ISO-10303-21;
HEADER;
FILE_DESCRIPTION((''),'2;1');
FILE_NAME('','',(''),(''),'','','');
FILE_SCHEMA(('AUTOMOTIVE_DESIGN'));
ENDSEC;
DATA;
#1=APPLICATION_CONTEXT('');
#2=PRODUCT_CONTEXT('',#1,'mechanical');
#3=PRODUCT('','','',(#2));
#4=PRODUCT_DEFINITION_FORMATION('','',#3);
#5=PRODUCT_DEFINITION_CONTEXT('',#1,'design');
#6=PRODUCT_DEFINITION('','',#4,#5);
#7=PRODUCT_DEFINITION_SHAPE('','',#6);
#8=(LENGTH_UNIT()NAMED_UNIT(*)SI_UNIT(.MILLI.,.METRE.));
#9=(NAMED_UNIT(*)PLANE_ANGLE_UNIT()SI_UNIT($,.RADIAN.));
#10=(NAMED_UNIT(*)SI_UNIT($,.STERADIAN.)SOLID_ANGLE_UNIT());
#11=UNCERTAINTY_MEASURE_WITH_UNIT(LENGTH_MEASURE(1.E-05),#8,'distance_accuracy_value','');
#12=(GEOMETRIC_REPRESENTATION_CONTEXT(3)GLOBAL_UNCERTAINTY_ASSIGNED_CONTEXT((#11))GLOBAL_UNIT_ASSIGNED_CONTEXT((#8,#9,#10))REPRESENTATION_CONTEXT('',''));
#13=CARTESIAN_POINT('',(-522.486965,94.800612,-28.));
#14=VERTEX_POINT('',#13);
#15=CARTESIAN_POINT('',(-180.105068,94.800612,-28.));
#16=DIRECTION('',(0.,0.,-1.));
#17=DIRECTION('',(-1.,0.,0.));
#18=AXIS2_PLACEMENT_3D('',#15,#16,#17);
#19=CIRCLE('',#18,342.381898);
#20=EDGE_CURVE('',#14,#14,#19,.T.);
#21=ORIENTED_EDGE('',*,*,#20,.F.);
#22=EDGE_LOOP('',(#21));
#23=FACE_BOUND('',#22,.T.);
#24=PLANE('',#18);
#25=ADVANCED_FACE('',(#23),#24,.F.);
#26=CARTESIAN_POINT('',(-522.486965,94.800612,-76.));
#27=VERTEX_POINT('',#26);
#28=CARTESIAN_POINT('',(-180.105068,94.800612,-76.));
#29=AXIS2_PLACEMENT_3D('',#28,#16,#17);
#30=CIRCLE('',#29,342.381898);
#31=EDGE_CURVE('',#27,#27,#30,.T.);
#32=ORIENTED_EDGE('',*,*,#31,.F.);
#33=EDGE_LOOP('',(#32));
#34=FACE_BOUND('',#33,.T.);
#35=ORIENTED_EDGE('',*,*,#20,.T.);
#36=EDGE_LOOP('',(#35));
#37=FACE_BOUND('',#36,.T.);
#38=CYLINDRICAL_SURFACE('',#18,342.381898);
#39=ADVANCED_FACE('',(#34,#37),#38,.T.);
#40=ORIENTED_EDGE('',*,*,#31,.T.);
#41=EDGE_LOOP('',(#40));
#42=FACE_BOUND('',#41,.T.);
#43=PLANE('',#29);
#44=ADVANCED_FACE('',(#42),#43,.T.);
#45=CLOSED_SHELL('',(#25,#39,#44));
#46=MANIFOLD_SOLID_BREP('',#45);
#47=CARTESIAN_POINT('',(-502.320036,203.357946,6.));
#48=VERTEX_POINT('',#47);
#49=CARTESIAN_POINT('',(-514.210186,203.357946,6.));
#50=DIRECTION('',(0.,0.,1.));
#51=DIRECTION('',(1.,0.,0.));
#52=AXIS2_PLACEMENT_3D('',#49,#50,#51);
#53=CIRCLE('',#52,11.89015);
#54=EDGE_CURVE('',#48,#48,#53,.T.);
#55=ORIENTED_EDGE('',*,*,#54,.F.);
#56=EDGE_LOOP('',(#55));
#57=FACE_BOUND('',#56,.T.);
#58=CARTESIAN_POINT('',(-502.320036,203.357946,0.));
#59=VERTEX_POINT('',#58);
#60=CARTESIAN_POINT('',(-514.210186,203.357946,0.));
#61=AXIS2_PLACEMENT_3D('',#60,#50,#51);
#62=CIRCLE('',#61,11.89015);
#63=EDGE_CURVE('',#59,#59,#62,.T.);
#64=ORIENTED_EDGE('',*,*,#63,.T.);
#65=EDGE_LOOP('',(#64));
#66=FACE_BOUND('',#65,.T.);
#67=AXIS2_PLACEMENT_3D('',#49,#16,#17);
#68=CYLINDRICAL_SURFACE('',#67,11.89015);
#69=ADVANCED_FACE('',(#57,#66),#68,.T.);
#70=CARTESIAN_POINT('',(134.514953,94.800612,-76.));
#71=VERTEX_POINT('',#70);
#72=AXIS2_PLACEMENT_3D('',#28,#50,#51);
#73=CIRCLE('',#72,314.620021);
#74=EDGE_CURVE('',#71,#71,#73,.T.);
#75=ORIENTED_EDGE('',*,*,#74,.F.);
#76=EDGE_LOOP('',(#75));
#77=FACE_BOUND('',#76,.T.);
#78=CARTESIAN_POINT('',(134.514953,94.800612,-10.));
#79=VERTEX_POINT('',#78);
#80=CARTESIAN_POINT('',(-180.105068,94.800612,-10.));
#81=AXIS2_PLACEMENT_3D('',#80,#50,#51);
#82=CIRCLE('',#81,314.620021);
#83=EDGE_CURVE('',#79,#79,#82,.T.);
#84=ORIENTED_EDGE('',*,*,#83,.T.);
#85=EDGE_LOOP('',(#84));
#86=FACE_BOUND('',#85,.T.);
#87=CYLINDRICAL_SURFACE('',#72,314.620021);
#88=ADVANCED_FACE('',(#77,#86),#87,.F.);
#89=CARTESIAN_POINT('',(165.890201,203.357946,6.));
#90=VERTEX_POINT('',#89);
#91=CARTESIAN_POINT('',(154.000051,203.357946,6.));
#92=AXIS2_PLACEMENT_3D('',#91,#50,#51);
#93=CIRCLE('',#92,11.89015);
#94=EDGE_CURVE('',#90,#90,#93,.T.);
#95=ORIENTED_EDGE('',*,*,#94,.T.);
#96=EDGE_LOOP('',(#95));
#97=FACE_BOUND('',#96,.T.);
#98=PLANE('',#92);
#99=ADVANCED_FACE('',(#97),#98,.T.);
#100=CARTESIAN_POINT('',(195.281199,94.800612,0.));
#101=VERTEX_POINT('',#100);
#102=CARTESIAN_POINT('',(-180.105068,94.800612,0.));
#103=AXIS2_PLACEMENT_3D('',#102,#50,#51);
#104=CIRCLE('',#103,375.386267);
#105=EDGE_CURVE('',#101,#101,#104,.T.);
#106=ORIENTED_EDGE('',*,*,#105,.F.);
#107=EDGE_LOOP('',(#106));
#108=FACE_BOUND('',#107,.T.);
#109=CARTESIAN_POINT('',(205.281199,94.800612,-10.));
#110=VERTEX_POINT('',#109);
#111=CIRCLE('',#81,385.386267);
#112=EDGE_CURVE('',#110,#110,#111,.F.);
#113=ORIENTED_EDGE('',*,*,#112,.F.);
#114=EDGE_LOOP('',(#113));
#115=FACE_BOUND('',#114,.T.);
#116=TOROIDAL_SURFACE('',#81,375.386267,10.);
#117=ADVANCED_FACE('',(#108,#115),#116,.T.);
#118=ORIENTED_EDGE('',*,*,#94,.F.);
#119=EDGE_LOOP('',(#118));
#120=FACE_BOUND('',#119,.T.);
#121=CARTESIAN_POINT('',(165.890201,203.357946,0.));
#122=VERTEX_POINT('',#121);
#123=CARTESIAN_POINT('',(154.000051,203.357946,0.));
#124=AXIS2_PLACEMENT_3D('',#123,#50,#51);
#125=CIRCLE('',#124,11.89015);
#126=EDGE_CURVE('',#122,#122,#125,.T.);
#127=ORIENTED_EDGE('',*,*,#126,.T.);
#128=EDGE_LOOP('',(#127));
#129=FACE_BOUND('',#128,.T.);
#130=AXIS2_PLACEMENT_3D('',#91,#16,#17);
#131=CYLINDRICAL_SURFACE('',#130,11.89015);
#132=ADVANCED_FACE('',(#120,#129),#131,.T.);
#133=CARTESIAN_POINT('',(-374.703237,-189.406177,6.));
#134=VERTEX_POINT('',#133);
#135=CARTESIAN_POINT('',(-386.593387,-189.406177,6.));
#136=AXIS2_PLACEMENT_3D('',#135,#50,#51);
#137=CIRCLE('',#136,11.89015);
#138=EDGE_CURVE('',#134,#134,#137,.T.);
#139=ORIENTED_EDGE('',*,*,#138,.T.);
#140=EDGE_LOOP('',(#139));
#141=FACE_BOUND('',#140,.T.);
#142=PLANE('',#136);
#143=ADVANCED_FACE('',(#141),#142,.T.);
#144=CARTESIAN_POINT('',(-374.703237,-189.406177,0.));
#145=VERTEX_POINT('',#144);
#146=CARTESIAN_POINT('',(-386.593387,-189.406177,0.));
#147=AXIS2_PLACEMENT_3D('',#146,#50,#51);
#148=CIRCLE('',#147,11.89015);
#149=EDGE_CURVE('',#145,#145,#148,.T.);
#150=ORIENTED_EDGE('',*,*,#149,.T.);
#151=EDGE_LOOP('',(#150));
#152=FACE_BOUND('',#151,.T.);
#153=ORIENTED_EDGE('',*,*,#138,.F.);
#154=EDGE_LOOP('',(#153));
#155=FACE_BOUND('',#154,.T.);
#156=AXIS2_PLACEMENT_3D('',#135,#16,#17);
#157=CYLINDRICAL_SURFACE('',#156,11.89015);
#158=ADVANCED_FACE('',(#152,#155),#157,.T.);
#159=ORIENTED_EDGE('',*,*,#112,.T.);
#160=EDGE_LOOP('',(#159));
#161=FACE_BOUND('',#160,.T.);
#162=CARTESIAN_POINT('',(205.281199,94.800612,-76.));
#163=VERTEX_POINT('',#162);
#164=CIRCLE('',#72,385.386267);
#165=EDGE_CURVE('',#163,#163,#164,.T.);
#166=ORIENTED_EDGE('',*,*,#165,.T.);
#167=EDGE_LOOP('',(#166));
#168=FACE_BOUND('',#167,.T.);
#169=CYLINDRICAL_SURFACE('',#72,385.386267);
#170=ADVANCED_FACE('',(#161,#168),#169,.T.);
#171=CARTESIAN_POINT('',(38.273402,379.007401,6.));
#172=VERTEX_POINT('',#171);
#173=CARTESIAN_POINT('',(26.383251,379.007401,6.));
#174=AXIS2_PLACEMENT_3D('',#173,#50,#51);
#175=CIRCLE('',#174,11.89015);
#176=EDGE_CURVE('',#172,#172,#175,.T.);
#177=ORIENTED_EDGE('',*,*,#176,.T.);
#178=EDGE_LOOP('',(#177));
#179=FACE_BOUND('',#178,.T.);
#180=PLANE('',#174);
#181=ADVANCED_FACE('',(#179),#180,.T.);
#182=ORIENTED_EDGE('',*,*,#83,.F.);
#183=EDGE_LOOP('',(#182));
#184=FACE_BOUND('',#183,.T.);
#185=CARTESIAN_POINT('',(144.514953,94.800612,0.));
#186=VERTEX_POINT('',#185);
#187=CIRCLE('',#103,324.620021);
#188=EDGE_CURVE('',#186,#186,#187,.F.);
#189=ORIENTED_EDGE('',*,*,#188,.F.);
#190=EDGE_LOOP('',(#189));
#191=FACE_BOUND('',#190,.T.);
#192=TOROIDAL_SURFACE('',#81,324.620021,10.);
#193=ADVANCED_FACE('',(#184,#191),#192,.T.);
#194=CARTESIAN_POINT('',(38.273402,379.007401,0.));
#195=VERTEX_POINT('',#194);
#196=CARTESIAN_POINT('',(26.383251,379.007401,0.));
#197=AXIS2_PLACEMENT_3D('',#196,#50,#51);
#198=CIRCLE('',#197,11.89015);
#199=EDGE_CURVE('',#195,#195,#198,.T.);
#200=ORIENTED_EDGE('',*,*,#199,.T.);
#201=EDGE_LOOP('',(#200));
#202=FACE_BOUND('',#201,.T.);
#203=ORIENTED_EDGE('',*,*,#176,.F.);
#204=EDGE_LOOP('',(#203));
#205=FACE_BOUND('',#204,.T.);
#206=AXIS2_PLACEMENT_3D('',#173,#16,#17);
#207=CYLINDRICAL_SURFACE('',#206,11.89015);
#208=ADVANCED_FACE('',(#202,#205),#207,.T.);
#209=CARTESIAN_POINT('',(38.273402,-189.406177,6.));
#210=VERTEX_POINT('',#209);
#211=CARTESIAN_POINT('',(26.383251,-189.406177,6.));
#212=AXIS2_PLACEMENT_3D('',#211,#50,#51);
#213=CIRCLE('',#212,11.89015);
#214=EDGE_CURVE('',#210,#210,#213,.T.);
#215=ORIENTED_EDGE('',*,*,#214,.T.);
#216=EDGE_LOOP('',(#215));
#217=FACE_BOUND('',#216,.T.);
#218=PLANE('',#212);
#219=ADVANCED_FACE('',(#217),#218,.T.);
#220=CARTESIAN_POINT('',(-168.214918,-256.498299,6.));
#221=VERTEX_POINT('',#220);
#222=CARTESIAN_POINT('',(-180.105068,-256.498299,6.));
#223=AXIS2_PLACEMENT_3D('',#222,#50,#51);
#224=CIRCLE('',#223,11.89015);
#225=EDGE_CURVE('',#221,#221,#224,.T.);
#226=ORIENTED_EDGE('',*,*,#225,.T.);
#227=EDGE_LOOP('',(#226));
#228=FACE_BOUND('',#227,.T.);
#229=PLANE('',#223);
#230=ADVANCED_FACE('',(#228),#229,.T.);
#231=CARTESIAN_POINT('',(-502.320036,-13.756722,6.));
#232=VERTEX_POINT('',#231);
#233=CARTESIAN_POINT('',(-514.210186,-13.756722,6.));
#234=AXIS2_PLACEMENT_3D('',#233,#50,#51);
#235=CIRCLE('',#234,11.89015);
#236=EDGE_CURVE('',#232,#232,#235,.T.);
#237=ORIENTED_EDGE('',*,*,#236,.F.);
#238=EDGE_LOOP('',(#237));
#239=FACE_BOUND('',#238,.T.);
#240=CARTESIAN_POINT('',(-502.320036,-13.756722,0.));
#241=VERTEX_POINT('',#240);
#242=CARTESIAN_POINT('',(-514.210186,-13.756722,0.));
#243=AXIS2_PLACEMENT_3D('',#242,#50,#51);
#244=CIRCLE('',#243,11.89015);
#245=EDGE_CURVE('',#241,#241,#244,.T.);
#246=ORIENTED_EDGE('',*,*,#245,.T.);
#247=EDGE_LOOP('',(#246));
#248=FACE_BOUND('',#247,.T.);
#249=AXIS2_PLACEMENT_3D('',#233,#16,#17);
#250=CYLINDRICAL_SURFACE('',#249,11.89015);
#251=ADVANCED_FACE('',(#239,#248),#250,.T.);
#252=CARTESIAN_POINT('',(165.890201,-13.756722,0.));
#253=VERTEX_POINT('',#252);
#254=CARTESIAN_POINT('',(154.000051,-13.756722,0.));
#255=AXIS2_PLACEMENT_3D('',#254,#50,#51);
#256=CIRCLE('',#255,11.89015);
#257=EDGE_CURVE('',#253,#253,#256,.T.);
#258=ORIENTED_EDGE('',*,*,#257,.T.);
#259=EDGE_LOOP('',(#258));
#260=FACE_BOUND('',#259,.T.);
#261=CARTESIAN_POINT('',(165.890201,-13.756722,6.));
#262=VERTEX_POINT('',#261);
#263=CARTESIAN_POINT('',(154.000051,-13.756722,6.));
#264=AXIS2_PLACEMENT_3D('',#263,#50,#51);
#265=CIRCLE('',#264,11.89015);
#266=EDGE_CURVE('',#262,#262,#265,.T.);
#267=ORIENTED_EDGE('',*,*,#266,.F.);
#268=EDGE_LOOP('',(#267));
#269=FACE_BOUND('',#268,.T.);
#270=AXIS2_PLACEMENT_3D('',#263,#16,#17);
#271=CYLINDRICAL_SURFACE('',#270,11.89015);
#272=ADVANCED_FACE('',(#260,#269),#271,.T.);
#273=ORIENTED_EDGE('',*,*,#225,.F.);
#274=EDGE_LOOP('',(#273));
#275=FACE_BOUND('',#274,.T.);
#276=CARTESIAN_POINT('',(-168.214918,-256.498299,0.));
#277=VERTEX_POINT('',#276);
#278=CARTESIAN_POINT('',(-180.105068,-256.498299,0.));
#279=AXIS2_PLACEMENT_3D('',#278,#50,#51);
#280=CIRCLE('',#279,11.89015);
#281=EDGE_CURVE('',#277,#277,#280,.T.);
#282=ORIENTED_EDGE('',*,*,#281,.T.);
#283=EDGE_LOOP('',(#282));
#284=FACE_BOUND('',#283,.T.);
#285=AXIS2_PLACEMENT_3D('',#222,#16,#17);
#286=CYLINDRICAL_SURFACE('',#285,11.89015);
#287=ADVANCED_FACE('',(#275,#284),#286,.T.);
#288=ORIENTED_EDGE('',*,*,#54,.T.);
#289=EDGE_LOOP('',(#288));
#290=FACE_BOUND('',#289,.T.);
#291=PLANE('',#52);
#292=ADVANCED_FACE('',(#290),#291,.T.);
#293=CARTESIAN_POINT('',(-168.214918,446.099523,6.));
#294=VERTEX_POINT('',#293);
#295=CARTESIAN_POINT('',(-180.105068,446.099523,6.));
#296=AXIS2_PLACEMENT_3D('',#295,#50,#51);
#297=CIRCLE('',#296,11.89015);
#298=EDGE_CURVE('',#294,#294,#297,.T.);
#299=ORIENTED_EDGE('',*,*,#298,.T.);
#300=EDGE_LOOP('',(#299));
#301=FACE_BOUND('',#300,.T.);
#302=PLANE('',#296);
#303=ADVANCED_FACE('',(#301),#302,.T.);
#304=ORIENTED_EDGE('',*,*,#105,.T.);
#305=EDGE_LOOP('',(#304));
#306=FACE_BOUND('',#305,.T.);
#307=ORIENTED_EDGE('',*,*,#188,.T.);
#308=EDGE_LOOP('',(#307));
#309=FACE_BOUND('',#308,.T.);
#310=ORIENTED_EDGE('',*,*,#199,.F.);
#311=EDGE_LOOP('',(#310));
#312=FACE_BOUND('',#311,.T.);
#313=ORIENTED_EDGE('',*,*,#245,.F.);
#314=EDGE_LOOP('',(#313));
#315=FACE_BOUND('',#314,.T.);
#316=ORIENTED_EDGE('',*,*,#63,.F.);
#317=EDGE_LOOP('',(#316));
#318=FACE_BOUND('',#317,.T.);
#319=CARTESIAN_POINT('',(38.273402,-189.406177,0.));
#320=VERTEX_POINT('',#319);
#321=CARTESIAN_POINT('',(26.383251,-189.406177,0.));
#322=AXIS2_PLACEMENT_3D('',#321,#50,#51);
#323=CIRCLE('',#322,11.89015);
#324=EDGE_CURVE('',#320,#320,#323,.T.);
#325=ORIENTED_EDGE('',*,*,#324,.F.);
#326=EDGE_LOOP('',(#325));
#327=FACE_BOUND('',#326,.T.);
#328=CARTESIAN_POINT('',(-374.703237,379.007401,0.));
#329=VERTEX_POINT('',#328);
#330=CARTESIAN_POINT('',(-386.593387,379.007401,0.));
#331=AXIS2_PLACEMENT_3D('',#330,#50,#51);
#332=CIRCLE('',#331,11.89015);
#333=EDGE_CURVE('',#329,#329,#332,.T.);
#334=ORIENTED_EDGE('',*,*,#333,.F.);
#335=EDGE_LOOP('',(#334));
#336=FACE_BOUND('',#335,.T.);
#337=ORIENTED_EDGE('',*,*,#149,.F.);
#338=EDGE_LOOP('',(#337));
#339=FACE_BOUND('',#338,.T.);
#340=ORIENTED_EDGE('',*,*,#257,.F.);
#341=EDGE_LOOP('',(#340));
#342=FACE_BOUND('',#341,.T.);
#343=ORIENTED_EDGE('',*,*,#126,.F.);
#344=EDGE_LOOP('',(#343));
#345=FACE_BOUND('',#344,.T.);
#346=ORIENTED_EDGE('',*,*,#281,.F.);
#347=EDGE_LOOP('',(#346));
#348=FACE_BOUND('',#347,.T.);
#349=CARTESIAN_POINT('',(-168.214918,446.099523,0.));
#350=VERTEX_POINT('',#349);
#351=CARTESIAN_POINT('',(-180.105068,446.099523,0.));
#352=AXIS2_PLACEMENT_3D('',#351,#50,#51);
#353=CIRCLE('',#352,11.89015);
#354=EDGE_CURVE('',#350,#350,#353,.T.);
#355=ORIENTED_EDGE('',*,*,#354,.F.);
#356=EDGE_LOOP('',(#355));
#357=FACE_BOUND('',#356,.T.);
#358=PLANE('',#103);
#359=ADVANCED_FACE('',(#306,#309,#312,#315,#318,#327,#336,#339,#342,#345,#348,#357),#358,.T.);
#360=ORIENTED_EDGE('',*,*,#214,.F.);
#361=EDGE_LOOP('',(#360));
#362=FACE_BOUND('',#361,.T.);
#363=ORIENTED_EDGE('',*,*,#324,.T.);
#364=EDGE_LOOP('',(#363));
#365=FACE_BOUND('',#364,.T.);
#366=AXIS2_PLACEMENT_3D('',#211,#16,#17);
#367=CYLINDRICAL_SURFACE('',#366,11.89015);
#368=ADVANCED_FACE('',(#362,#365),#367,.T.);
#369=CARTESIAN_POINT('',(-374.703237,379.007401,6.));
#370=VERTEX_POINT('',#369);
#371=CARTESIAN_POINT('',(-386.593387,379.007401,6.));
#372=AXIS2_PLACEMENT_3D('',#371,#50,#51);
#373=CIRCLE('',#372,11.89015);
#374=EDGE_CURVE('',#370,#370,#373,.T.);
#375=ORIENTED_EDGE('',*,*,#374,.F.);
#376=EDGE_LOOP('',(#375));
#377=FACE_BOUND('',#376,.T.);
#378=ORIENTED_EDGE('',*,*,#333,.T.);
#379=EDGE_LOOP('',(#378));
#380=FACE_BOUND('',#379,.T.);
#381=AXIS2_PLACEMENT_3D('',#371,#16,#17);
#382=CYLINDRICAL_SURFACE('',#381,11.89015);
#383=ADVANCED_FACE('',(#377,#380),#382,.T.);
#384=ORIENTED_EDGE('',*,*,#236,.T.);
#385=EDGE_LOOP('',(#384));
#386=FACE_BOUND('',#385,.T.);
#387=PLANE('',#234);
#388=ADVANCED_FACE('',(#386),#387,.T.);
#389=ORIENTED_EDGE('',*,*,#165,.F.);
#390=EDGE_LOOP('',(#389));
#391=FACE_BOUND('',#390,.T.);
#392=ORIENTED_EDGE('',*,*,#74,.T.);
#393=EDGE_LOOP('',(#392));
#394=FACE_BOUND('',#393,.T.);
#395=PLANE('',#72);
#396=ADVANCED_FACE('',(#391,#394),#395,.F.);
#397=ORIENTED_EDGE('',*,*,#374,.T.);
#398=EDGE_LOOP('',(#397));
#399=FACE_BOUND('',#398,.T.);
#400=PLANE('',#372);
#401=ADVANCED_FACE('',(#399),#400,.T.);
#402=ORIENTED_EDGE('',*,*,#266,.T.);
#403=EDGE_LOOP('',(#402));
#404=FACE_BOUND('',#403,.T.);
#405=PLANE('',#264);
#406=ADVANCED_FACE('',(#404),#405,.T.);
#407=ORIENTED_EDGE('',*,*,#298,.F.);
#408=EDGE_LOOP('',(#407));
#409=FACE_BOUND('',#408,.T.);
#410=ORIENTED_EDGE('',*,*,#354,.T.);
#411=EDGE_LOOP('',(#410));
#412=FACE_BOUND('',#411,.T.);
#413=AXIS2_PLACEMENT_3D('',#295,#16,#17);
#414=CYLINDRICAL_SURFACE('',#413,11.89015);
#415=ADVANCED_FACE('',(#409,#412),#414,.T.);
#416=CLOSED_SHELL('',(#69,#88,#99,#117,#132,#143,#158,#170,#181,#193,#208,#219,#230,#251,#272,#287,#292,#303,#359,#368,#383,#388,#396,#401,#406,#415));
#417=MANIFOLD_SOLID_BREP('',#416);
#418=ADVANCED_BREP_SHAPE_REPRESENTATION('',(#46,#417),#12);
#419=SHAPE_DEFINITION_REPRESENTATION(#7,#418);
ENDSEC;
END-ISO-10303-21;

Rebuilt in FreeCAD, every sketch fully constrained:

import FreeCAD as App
import Part
import Sketcher

V = App.Vector
Q = App.Units.Quantity


def edges_at(feature, points):
    """Names of the edges that pass closest to the given points."""
    edges = feature.Shape.Edges
    near = lambda p: min(range(len(edges)), key=lambda i: edges[i].distToShape(Part.Vertex(*p))[0])
    return sorted({f"Edge{near(p) + 1}" for p in points})

doc = App.newDocument("Part")
params = doc.addObject("Spreadsheet::Sheet", "Params")
for row, (alias, value) in enumerate([
    ("pad1_length", "76 mm"),
    ("fillet_radius", "10 mm"),
    ("fillet2_radius", "10 mm"),
    ("pad2_length", "6 mm"),
    ("pad3_length", "48 mm"),
], start=1):
    params.set(f"A{row}", alias)
    params.set(f"B{row}", "=" + value)
    params.setAlias(f"B{row}", alias)

body = doc.addObject("PartDesign::Body", "Body")

# Sketch on XY plane
sketch1 = body.newObject("Sketcher::SketchObject", "Sketch")
sketch1.AttachmentSupport = (doc.getObject("XY_Plane"), [""])
sketch1.MapMode = "FlatFace"
sketch1.addGeometry([
    Part.Circle(V(-180, 95, 0), V(0, 0, 1), 385),
    Part.Circle(V(-180, 95, 0), V(0, 0, 1), 315),
], False)
sketch1.addConstraint([
    Sketcher.Constraint("Coincident", 1, 3, 0, 3),
    Sketcher.Constraint("Diameter", 1, Q("629.240041 mm")),
    Sketcher.Constraint("Diameter", 0, Q("770.772533 mm")),
    Sketcher.Constraint("DistanceY", -1, 1, 0, 3, Q("94.800612 mm")),
    Sketcher.Constraint("DistanceX", 0, 3, -1, 1, Q("180.105068 mm")),
])
pad1 = body.newObject("PartDesign::Pad", "Pad")
pad1.Profile = sketch1
pad1.setExpression("Length", "Params.pad1_length")
pad1.Reversed = True
doc.recompute()

fillet = body.newObject("PartDesign::Fillet", "Fillet")
fillet.Base = (pad1, edges_at(pad1, [(-494.725, 94.801, 0)]))
fillet.setExpression("Radius", "Params.fillet_radius")
doc.recompute()

fillet2 = body.newObject("PartDesign::Fillet", "Fillet001")
fillet2.Base = (fillet, edges_at(fillet, [(-565.491, 94.801, 0)]))
fillet2.setExpression("Radius", "Params.fillet2_radius")

# Sketch on XY plane
sketch2 = body.newObject("Sketcher::SketchObject", "Sketch001")
sketch2.AttachmentSupport = (doc.getObject("XY_Plane"), [""])
sketch2.MapMode = "FlatFace"
sketch2.addGeometry([
    Part.Circle(V(26, 379, 0), V(0, 0, 1), 12),  # 0
    Part.Circle(V(-180, 446, 0), V(0, 0, 1), 12),  # 1
    Part.Circle(V(154, 203, 0), V(0, 0, 1), 12),  # 2
    Part.Circle(V(154, -14, 0), V(0, 0, 1), 12),  # 3
    Part.Circle(V(26, -189, 0), V(0, 0, 1), 12),  # 4
    Part.Circle(V(-180, -256, 0), V(0, 0, 1), 12),  # 5
    Part.Circle(V(-387, -189, 0), V(0, 0, 1), 12),  # 6
    Part.Circle(V(-514, -14, 0), V(0, 0, 1), 12),  # 7
    Part.Circle(V(-514, 203, 0), V(0, 0, 1), 12),  # 8
    Part.Circle(V(-387, 379, 0), V(0, 0, 1), 12),  # 9
], False)
sketch2.addConstraint([
    Sketcher.Constraint("Equal", 0, 1),
    Sketcher.Constraint("Equal", 1, 2),
    Sketcher.Constraint("Equal", 2, 3),
    Sketcher.Constraint("Equal", 3, 4),
    Sketcher.Constraint("Equal", 4, 5),
    Sketcher.Constraint("Equal", 5, 6),
    Sketcher.Constraint("Equal", 6, 7),
    Sketcher.Constraint("Equal", 7, 8),
    Sketcher.Constraint("Equal", 8, 9),
    Sketcher.Constraint("Horizontal", 4, 3, 6, 3),
    Sketcher.Constraint("Horizontal", 3, 3, 7, 3),
    Sketcher.Constraint("Horizontal", 2, 3, 8, 3),
    Sketcher.Constraint("Horizontal", 0, 3, 9, 3),
    Sketcher.Constraint("Vertical", 2, 3, 3, 3),
    Sketcher.Constraint("Vertical", 0, 3, 4, 3),
    Sketcher.Constraint("Vertical", 1, 3, 5, 3),
    Sketcher.Constraint("Vertical", 7, 3, 8, 3),
    Sketcher.Constraint("Vertical", 6, 3, 9, 3),
    Sketcher.Constraint("Diameter", 0, Q("23.7803 mm")),
    Sketcher.Constraint("DistanceY", -1, 1, 0, 3, Q("379.007401 mm")),
    Sketcher.Constraint("DistanceY", 5, 3, -1, 1, Q("256.498299 mm")),
    Sketcher.Constraint("DistanceX", 0, 3, 2, 3, Q("127.616799 mm")),
    Sketcher.Constraint("DistanceY", 4, 3, 1, 3, Q("635.5057 mm")),
    Sketcher.Constraint("DistanceX", 7, 3, 6, 3, Q("127.616799 mm")),
    Sketcher.Constraint("DistanceX", -1, 1, 0, 3, Q("26.383251 mm")),
    Sketcher.Constraint("DistanceY", 3, 3, -1, 1, Q("13.756722 mm")),
    Sketcher.Constraint("DistanceX", 1, 3, 0, 3, Q("206.488319 mm")),
    Sketcher.Constraint("DistanceY", 0, 3, 1, 3, Q("67.092122 mm")),
    Sketcher.Constraint("DistanceX", 6, 3, 5, 3, Q("206.488319 mm")),
    Sketcher.Constraint("DistanceY", -1, 1, 2, 3, Q("203.357946 mm")),
])
pad2 = body.newObject("PartDesign::Pad", "Pad001")
pad2.Profile = sketch2
pad2.setExpression("Length", "Params.pad2_length")
body2 = doc.addObject("PartDesign::Body", "Body001")

# Sketch on XY plane
sketch3 = body2.newObject("Sketcher::SketchObject", "Sketch002")
sketch3.AttachmentSupport = (doc.getObject("XY_Plane001"), [""])
sketch3.MapMode = "FlatFace"
sketch3.AttachmentOffset = App.Placement(V(0, 0, -76), App.Rotation())
sketch3.addGeometry(Part.Circle(V(-180, 95, 0), V(0, 0, 1), 342), False)
sketch3.addConstraint([
    Sketcher.Constraint("Diameter", 0, Q("684.763795 mm")),
    Sketcher.Constraint("DistanceY", -1, 1, 0, 3, Q("94.800612 mm")),
    Sketcher.Constraint("DistanceX", 0, 3, -1, 1, Q("180.105068 mm")),
])
pad3 = body2.newObject("PartDesign::Pad", "Pad002")
pad3.Profile = sketch3
pad3.setExpression("Length", "Params.pad3_length")

doc.recompute()
